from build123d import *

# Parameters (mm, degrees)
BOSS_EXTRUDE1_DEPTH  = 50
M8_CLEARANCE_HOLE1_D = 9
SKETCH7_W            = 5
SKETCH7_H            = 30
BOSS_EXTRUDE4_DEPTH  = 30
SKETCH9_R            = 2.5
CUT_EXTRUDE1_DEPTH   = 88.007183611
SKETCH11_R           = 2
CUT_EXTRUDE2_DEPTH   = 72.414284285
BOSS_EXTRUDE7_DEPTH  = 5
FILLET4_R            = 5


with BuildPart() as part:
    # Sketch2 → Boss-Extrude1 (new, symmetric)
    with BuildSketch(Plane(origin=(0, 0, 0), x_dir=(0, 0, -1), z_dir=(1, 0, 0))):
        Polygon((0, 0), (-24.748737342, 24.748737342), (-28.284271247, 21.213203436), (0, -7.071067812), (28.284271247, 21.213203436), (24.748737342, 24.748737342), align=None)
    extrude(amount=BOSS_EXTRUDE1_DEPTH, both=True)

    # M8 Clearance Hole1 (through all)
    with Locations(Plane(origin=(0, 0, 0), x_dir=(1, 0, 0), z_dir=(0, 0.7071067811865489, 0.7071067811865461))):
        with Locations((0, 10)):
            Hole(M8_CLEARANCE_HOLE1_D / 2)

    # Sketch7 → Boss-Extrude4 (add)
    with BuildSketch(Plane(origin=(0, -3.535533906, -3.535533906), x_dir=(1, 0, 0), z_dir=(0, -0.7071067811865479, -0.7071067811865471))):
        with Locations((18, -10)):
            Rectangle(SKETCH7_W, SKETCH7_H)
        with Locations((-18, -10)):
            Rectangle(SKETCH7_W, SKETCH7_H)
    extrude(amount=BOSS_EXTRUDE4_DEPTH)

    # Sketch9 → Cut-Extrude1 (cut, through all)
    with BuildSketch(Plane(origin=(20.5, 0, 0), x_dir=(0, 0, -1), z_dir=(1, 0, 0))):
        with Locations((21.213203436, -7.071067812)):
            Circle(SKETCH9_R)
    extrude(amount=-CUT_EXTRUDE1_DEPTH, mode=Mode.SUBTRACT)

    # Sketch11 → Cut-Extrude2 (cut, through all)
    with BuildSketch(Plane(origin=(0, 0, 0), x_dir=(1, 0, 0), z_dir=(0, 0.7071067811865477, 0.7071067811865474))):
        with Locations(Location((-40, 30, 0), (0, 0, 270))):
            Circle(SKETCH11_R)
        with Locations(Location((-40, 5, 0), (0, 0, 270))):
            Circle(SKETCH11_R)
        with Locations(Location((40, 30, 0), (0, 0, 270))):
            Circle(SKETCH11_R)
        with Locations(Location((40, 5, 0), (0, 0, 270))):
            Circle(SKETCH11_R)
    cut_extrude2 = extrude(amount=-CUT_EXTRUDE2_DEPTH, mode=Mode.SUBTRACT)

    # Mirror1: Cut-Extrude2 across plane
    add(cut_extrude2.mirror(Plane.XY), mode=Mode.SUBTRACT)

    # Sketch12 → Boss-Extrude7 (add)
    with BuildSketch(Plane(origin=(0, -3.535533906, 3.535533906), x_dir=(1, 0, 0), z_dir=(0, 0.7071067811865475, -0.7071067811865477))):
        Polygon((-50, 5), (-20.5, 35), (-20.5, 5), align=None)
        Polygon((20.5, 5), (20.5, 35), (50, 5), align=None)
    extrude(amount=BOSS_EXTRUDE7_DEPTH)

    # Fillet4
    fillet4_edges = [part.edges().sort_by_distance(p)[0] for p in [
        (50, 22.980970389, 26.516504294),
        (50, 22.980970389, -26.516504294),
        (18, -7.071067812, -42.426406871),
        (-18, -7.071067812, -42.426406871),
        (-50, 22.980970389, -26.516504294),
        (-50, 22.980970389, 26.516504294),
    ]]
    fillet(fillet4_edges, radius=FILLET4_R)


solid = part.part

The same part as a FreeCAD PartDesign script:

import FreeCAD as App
import Part
import Sketcher
from FreeCAD import Vector
Q = App.Units.Quantity


def edges_at(feature, points):
    """Names of the edges that pass closest to the given points."""
    edges = feature.Shape.Edges
    near = lambda p: min(range(len(edges)), key=lambda i: edges[i].distToShape(Part.Vertex(*p))[0])
    return sorted({f"Edge{near(p) + 1}" for p in points})

doc = App.newDocument("Part")
body = doc.addObject("PartDesign::Body", "Body")

# Sketch on YZ plane
sketch1 = body.newObject("Sketcher::SketchObject", "Sketch")
sketch1.AttachmentSupport = (doc.getObject("YZ_Plane"), [""])
sketch1.MapMode = "FlatFace"
sketch1.addGeometry([
    Part.LineSegment(Vector(0, 0, 0), Vector(24.7, 24.7, 0)),  # 0
    Part.LineSegment(Vector(24.7, 24.7, 0), Vector(21.2, 28.3, 0)),  # 1
    Part.LineSegment(Vector(21.2, 28.3, 0), Vector(-7.1, 0, 0)),  # 2
    Part.LineSegment(Vector(-7.1, 0, 0), Vector(21.2, -28.3, 0)),  # 3
    Part.LineSegment(Vector(21.2, -28.3, 0), Vector(24.7, -24.7, 0)),  # 4
    Part.LineSegment(Vector(24.7, -24.7, 0), Vector(0, 0, 0)),  # 5
], False)
sketch1.addConstraint([
    Sketcher.Constraint("Coincident", 0, 2, 1, 1),
    Sketcher.Constraint("Coincident", 1, 2, 2, 1),
    Sketcher.Constraint("Coincident", 2, 2, 3, 1),
    Sketcher.Constraint("Coincident", 3, 2, 4, 1),
    Sketcher.Constraint("Coincident", 4, 2, 5, 1),
    Sketcher.Constraint("Coincident", 5, 2, 0, 1),
    Sketcher.Constraint("Coincident", 5, 2, -1, 1),
    Sketcher.Constraint("Symmetric", 1, 2, 3, 2, -1),
    Sketcher.Constraint("Symmetric", 0, 2, 4, 2, -1),
    Sketcher.Constraint("PointOnObject", 2, 2, -1),
    Sketcher.Constraint("Perpendicular", 0, 1),
    Sketcher.Constraint("Perpendicular", 1, 2),
    Sketcher.Constraint("Perpendicular", 2, 3),
    Sketcher.Constraint("Distance", 0, Q("35 mm")),
    Sketcher.Constraint("Distance", 1, Q("5 mm")),
])
pad1 = body.newObject("PartDesign::Pad", "Pad")
pad1.Profile = sketch1
pad1.Length = 100
pad1.Midplane = True

# Sketch on an angled plane
sketch2 = body.newObject("Sketcher::SketchObject", "Sketch001")
sketch2.Placement = App.Placement(Vector(0, 0, 0), App.Rotation(Vector(1, 0, 0), Vector(0, 0.707106781, -0.707106781), Vector(0, 0.707106781, 0.707106781), "ZXY"))
sketch2.addGeometry(Part.Circle(Vector(0, 10, 0), Vector(0, 0, 1), 4.5), False)
sketch2.addConstraint([
    Sketcher.Constraint("PointOnObject", 0, 3, -2),
    Sketcher.Constraint("Diameter", 0, Q("9 mm")),
    Sketcher.Constraint("DistanceY", -1, 1, 0, 3, Q("10 mm")),
])
doc.recompute()
hole = body.newObject("PartDesign::Hole", "Hole")
hole.Profile = sketch2
hole.ThreadType = "None"
hole.Diameter = 9
hole.DepthType = "ThroughAll"

# Sketch on an angled plane
sketch3 = body.newObject("Sketcher::SketchObject", "Sketch002")
sketch3.Placement = App.Placement(Vector(0, -3.535534, -3.535534), App.Rotation(Vector(1, 0, 0), Vector(0, -0.707106781, 0.707106781), Vector(0, -0.707106781, -0.707106781), "ZXY"))
sketch3.addGeometry([
    Part.LineSegment(Vector(16, 5, 0), Vector(16, -25, 0)),  # 0
    Part.LineSegment(Vector(16, -25, 0), Vector(20, -25, 0)),  # 1
    Part.LineSegment(Vector(20, -25, 0), Vector(20, 5, 0)),  # 2
    Part.LineSegment(Vector(20, 5, 0), Vector(16, 5, 0)),  # 3
    Part.LineSegment(Vector(-20, 5, 0), Vector(-20, -25, 0)),  # 4
    Part.LineSegment(Vector(-20, -25, 0), Vector(-16, -25, 0)),  # 5
    Part.LineSegment(Vector(-16, -25, 0), Vector(-16, 5, 0)),  # 6
    Part.LineSegment(Vector(-16, 5, 0), Vector(-20, 5, 0)),  # 7
], False)
sketch3.addConstraint([
    Sketcher.Constraint("Coincident", 0, 2, 1, 1),
    Sketcher.Constraint("Coincident", 1, 2, 2, 1),
    Sketcher.Constraint("Coincident", 2, 2, 3, 1),
    Sketcher.Constraint("Coincident", 3, 2, 0, 1),
    Sketcher.Constraint("Coincident", 4, 2, 5, 1),
    Sketcher.Constraint("Coincident", 5, 2, 6, 1),
    Sketcher.Constraint("Coincident", 6, 2, 7, 1),
    Sketcher.Constraint("Coincident", 7, 2, 4, 1),
    Sketcher.Constraint("Vertical", 0),
    Sketcher.Constraint("Horizontal", 1),
    Sketcher.Constraint("Vertical", 2),
    Sketcher.Constraint("Horizontal", 3),
    Sketcher.Constraint("Vertical", 4),
    Sketcher.Constraint("Horizontal", 5),
    Sketcher.Constraint("Vertical", 6),
    Sketcher.Constraint("Horizontal", 7),
    Sketcher.Constraint("Symmetric", 1, 2, 4, 2, -2),
    Sketcher.Constraint("Symmetric", 3, 2, 6, 2, -2),
    Sketcher.Constraint("DistanceX", 1, 1, 1, 2, Q("5 mm")),
    Sketcher.Constraint("DistanceY", 0, 2, 0, 1, Q("30 mm")),
    Sketcher.Constraint("DistanceY", 0, 2, -1, 1, Q("25 mm")),
    Sketcher.Constraint("DistanceX", 4, 2, 0, 2, Q("36 mm")),
])
pad2 = body.newObject("PartDesign::Pad", "Pad001")
pad2.Profile = sketch3
pad2.Length = 30

# Sketch on YZ plane
sketch4 = body.newObject("Sketcher::SketchObject", "Sketch003")
sketch4.AttachmentSupport = (doc.getObject("YZ_Plane"), [""])
sketch4.MapMode = "FlatFace"
sketch4.AttachmentOffset = App.Placement(Vector(0, 0, 20.5), App.Rotation())
sketch4.addGeometry(Part.Circle(Vector(-7.1, -21.2, 0), Vector(0, 0, 1), 2.5), False)
sketch4.addConstraint([
    Sketcher.Constraint("Diameter", 0, Q("5 mm")),
    Sketcher.Constraint("DistanceX", 0, 3, -1, 1, Q("7.071068 mm")),
    Sketcher.Constraint("DistanceY", 0, 3, -1, 1, Q("21.213203 mm")),
])
pocket1 = body.newObject("PartDesign::Pocket", "Pocket")
pocket1.Profile = sketch4
pocket1.Type = "ThroughAll"

# Sketch on an angled plane
sketch5 = body.newObject("Sketcher::SketchObject", "Sketch004")
sketch5.Placement = App.Placement(Vector(0, 0, 0), App.Rotation(Vector(1, 0, 0), Vector(0, 0.707106781, -0.707106781), Vector(0, 0.707106781, 0.707106781), "ZXY"))
sketch5.addGeometry([
    Part.Circle(Vector(-40, 30, 0), Vector(0, 0, 1), 2),
    Part.Circle(Vector(-40, 5, 0), Vector(0, 0, 1), 2),
    Part.Circle(Vector(40, 30, 0), Vector(0, 0, 1), 2),
    Part.Circle(Vector(40, 5, 0), Vector(0, 0, 1), 2),
], False)
sketch5.addConstraint([
    Sketcher.Constraint("Equal", 0, 1),
    Sketcher.Constraint("Equal", 1, 2),
    Sketcher.Constraint("Equal", 2, 3),
    Sketcher.Constraint("Symmetric", 0, 3, 2, 3, -2),
    Sketcher.Constraint("Symmetric", 1, 3, 3, 3, -2),
    Sketcher.Constraint("Vertical", 0, 3, 1, 3),
    Sketcher.Constraint("Diameter", 0, Q("4 mm")),
    Sketcher.Constraint("DistanceX", 0, 3, -1, 1, Q("40 mm")),
    Sketcher.Constraint("DistanceY", -1, 1, 0, 3, Q("30 mm")),
    Sketcher.Constraint("DistanceY", -1, 1, 1, 3, Q("5 mm")),
])
pocket2 = body.newObject("PartDesign::Pocket", "Pocket001")
pocket2.Profile = sketch5
pocket2.Type = "ThroughAll"
doc.recompute()

mirrored = body.newObject("PartDesign::Mirrored", "Mirrored")
mirrored.Originals = [pocket2]
mirrored.MirrorPlane = (doc.getObject("XY_Plane"), [""])
body.Tip = mirrored

# Sketch on an angled plane
sketch6 = body.newObject("Sketcher::SketchObject", "Sketch005")
sketch6.Placement = App.Placement(Vector(0, -3.535534, 3.535534), App.Rotation(Vector(1, 0, 0), Vector(0, -0.707106781, -0.707106781), Vector(0, 0.707106781, -0.707106781), "ZXY"))
sketch6.addGeometry([
    Part.LineSegment(Vector(-20, 35, 0), Vector(-50, 5, 0)),  # 0
    Part.LineSegment(Vector(-50, 5, 0), Vector(-20, 5, 0)),  # 1
    Part.LineSegment(Vector(-20, 5, 0), Vector(-20, 35, 0)),  # 2
    Part.LineSegment(Vector(20, 35, 0), Vector(20, 5, 0)),  # 3
    Part.LineSegment(Vector(20, 5, 0), Vector(50, 5, 0)),  # 4
    Part.LineSegment(Vector(50, 5, 0), Vector(20, 35, 0)),  # 5
], False)
sketch6.addConstraint([
    Sketcher.Constraint("Coincident", 0, 2, 1, 1),
    Sketcher.Constraint("Coincident", 1, 2, 2, 1),
    Sketcher.Constraint("Coincident", 2, 2, 0, 1),
    Sketcher.Constraint("Coincident", 3, 2, 4, 1),
    Sketcher.Constraint("Coincident", 4, 2, 5, 1),
    Sketcher.Constraint("Coincident", 5, 2, 3, 1),
    Sketcher.Constraint("Horizontal", 1),
    Sketcher.Constraint("Vertical", 2),
    Sketcher.Constraint("Vertical", 3),
    Sketcher.Constraint("Horizontal", 4),
    Sketcher.Constraint("Symmetric", 1, 2, 3, 2, -2),
    Sketcher.Constraint("Horizontal", 2, 2, 5, 2),
    Sketcher.Constraint("Equal", 1, 4),
    Sketcher.Constraint("DistanceY", 2, 1, 2, 2, Q("30 mm")),
    Sketcher.Constraint("DistanceX", 1, 1, 1, 2, Q("29.5 mm")),
    Sketcher.Constraint("DistanceX", 0, 2, -1, 1, Q("50 mm")),
    Sketcher.Constraint("DistanceY", -1, 1, 0, 2, Q("5 mm")),
])
pad3 = body.newObject("PartDesign::Pad", "Pad002")
pad3.Profile = sketch6
pad3.Length = 5
doc.recompute()

fillet = body.newObject("PartDesign::Fillet", "Fillet")
fillet.Base = (pad3, edges_at(pad3, [
    (50, 22.981, 26.517),
    (50, 22.981, -26.517),
    (18, -7.071, -42.426),
    (-18, -7.071, -42.426),
    (-50, 22.981, -26.517),
    (-50, 22.981, 26.517),
]))
fillet.Radius = 5

doc.recompute()
